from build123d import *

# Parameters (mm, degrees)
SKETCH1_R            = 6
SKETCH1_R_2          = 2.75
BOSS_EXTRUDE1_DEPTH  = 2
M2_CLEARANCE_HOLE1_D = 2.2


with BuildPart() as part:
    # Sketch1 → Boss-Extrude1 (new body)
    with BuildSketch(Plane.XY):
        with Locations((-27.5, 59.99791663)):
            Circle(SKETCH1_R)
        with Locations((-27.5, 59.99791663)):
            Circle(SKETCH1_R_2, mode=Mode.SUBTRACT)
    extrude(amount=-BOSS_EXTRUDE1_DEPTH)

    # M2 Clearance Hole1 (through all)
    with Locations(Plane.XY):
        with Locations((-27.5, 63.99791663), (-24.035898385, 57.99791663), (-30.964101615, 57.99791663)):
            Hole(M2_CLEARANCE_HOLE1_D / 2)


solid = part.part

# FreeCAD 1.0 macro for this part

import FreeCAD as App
import Part
import Sketcher

V = App.Vector

doc = App.newDocument("Part")
params = doc.addObject("Spreadsheet::Sheet", "Params")
for row, (alias, value) in enumerate([
    ("sketch1_diameter", "12 mm"),
    ("sketch1_diameter2", "5.5 mm"),
    ("pad1_length", "2 mm"),
    ("sketch2_diameter", "2.2 mm"),
    ("hole_diameter", "2.2 mm"),
], start=1):
    params.set(f"A{row}", alias)
    params.set(f"B{row}", "=" + value)
    params.setAlias(f"B{row}", alias)

body = doc.addObject("PartDesign::Body", "Body")

# Sketch on XY plane
sketch1 = doc.addObject("Sketcher::SketchObject", "Sketch")
body.addObject(sketch1)
sketch1.AttachmentSupport = (doc.XY_Plane, [""])
sketch1.MapMode = "FlatFace"
sketch1.addGeometry(Part.Circle(V(-27.5, 60, 0), V(0, 0, 1), 6), False)
sketch1.addGeometry(Part.Circle(V(-27.5, 60, 0), V(0, 0, 1), 2.8), False)
sketch1.addConstraint(Sketcher.Constraint("Coincident", 1, 3, 0, 3))
sketch1.addConstraint(Sketcher.Constraint("Diameter", 0, 12.0))
sketch1.addConstraint(Sketcher.Constraint("Diameter", 1, 5.5))
sketch1.addConstraint(Sketcher.Constraint("DistanceX", 0, 3, -1, 1, 27.5))
sketch1.addConstraint(Sketcher.Constraint("DistanceY", -1, 1, 0, 3, 59.997917))
sketch1.setExpression("Constraints[1]", "Params.sketch1_diameter")
sketch1.setExpression("Constraints[2]", "Params.sketch1_diameter2")
pad1 = doc.addObject("PartDesign::Pad", "Pad")
body.addObject(pad1)
pad1.Profile = sketch1
pad1.setExpression("Length", "Params.pad1_length")
pad1.Reversed = True

# Sketch on XY plane
sketch2 = doc.addObject("Sketcher::SketchObject", "Sketch001")
body.addObject(sketch2)
sketch2.AttachmentSupport = (doc.XY_Plane, [""])
sketch2.MapMode = "FlatFace"
sketch2.addGeometry(Part.Circle(V(-27.5, 64, 0), V(0, 0, 1), 1.1), False)
sketch2.addGeometry(Part.Circle(V(-24, 58, 0), V(0, 0, 1), 1.1), False)
sketch2.addGeometry(Part.Circle(V(-31, 58, 0), V(0, 0, 1), 1.1), False)
sketch2.addConstraint(Sketcher.Constraint("Equal", 0, 1))
sketch2.addConstraint(Sketcher.Constraint("Equal", 1, 2))
sketch2.addConstraint(Sketcher.Constraint("Horizontal", 1, 3, 2, 3))
sketch2.addConstraint(Sketcher.Constraint("Diameter", 0, 2.2))
sketch2.addConstraint(Sketcher.Constraint("DistanceY", 1, 3, 0, 3, 6.0))
sketch2.addConstraint(Sketcher.Constraint("DistanceX", 0, 3, -1, 1, 27.5))
sketch2.addConstraint(Sketcher.Constraint("DistanceX", 1, 3, -1, 1, 24.035898))
sketch2.addConstraint(Sketcher.Constraint("DistanceX", 2, 3, -1, 1, 30.964102))
sketch2.addConstraint(Sketcher.Constraint("DistanceY", -1, 1, 0, 3, 63.997917))
sketch2.setExpression("Constraints[3]", "Params.sketch2_diameter")
doc.recompute()
hole = doc.addObject("PartDesign::Hole", "Hole")
body.addObject(hole)
hole.Profile = sketch2
hole.ThreadType = "None"
hole.setExpression("Diameter", "Params.hole_diameter")
hole.DepthType = "ThroughAll"

doc.recompute()
